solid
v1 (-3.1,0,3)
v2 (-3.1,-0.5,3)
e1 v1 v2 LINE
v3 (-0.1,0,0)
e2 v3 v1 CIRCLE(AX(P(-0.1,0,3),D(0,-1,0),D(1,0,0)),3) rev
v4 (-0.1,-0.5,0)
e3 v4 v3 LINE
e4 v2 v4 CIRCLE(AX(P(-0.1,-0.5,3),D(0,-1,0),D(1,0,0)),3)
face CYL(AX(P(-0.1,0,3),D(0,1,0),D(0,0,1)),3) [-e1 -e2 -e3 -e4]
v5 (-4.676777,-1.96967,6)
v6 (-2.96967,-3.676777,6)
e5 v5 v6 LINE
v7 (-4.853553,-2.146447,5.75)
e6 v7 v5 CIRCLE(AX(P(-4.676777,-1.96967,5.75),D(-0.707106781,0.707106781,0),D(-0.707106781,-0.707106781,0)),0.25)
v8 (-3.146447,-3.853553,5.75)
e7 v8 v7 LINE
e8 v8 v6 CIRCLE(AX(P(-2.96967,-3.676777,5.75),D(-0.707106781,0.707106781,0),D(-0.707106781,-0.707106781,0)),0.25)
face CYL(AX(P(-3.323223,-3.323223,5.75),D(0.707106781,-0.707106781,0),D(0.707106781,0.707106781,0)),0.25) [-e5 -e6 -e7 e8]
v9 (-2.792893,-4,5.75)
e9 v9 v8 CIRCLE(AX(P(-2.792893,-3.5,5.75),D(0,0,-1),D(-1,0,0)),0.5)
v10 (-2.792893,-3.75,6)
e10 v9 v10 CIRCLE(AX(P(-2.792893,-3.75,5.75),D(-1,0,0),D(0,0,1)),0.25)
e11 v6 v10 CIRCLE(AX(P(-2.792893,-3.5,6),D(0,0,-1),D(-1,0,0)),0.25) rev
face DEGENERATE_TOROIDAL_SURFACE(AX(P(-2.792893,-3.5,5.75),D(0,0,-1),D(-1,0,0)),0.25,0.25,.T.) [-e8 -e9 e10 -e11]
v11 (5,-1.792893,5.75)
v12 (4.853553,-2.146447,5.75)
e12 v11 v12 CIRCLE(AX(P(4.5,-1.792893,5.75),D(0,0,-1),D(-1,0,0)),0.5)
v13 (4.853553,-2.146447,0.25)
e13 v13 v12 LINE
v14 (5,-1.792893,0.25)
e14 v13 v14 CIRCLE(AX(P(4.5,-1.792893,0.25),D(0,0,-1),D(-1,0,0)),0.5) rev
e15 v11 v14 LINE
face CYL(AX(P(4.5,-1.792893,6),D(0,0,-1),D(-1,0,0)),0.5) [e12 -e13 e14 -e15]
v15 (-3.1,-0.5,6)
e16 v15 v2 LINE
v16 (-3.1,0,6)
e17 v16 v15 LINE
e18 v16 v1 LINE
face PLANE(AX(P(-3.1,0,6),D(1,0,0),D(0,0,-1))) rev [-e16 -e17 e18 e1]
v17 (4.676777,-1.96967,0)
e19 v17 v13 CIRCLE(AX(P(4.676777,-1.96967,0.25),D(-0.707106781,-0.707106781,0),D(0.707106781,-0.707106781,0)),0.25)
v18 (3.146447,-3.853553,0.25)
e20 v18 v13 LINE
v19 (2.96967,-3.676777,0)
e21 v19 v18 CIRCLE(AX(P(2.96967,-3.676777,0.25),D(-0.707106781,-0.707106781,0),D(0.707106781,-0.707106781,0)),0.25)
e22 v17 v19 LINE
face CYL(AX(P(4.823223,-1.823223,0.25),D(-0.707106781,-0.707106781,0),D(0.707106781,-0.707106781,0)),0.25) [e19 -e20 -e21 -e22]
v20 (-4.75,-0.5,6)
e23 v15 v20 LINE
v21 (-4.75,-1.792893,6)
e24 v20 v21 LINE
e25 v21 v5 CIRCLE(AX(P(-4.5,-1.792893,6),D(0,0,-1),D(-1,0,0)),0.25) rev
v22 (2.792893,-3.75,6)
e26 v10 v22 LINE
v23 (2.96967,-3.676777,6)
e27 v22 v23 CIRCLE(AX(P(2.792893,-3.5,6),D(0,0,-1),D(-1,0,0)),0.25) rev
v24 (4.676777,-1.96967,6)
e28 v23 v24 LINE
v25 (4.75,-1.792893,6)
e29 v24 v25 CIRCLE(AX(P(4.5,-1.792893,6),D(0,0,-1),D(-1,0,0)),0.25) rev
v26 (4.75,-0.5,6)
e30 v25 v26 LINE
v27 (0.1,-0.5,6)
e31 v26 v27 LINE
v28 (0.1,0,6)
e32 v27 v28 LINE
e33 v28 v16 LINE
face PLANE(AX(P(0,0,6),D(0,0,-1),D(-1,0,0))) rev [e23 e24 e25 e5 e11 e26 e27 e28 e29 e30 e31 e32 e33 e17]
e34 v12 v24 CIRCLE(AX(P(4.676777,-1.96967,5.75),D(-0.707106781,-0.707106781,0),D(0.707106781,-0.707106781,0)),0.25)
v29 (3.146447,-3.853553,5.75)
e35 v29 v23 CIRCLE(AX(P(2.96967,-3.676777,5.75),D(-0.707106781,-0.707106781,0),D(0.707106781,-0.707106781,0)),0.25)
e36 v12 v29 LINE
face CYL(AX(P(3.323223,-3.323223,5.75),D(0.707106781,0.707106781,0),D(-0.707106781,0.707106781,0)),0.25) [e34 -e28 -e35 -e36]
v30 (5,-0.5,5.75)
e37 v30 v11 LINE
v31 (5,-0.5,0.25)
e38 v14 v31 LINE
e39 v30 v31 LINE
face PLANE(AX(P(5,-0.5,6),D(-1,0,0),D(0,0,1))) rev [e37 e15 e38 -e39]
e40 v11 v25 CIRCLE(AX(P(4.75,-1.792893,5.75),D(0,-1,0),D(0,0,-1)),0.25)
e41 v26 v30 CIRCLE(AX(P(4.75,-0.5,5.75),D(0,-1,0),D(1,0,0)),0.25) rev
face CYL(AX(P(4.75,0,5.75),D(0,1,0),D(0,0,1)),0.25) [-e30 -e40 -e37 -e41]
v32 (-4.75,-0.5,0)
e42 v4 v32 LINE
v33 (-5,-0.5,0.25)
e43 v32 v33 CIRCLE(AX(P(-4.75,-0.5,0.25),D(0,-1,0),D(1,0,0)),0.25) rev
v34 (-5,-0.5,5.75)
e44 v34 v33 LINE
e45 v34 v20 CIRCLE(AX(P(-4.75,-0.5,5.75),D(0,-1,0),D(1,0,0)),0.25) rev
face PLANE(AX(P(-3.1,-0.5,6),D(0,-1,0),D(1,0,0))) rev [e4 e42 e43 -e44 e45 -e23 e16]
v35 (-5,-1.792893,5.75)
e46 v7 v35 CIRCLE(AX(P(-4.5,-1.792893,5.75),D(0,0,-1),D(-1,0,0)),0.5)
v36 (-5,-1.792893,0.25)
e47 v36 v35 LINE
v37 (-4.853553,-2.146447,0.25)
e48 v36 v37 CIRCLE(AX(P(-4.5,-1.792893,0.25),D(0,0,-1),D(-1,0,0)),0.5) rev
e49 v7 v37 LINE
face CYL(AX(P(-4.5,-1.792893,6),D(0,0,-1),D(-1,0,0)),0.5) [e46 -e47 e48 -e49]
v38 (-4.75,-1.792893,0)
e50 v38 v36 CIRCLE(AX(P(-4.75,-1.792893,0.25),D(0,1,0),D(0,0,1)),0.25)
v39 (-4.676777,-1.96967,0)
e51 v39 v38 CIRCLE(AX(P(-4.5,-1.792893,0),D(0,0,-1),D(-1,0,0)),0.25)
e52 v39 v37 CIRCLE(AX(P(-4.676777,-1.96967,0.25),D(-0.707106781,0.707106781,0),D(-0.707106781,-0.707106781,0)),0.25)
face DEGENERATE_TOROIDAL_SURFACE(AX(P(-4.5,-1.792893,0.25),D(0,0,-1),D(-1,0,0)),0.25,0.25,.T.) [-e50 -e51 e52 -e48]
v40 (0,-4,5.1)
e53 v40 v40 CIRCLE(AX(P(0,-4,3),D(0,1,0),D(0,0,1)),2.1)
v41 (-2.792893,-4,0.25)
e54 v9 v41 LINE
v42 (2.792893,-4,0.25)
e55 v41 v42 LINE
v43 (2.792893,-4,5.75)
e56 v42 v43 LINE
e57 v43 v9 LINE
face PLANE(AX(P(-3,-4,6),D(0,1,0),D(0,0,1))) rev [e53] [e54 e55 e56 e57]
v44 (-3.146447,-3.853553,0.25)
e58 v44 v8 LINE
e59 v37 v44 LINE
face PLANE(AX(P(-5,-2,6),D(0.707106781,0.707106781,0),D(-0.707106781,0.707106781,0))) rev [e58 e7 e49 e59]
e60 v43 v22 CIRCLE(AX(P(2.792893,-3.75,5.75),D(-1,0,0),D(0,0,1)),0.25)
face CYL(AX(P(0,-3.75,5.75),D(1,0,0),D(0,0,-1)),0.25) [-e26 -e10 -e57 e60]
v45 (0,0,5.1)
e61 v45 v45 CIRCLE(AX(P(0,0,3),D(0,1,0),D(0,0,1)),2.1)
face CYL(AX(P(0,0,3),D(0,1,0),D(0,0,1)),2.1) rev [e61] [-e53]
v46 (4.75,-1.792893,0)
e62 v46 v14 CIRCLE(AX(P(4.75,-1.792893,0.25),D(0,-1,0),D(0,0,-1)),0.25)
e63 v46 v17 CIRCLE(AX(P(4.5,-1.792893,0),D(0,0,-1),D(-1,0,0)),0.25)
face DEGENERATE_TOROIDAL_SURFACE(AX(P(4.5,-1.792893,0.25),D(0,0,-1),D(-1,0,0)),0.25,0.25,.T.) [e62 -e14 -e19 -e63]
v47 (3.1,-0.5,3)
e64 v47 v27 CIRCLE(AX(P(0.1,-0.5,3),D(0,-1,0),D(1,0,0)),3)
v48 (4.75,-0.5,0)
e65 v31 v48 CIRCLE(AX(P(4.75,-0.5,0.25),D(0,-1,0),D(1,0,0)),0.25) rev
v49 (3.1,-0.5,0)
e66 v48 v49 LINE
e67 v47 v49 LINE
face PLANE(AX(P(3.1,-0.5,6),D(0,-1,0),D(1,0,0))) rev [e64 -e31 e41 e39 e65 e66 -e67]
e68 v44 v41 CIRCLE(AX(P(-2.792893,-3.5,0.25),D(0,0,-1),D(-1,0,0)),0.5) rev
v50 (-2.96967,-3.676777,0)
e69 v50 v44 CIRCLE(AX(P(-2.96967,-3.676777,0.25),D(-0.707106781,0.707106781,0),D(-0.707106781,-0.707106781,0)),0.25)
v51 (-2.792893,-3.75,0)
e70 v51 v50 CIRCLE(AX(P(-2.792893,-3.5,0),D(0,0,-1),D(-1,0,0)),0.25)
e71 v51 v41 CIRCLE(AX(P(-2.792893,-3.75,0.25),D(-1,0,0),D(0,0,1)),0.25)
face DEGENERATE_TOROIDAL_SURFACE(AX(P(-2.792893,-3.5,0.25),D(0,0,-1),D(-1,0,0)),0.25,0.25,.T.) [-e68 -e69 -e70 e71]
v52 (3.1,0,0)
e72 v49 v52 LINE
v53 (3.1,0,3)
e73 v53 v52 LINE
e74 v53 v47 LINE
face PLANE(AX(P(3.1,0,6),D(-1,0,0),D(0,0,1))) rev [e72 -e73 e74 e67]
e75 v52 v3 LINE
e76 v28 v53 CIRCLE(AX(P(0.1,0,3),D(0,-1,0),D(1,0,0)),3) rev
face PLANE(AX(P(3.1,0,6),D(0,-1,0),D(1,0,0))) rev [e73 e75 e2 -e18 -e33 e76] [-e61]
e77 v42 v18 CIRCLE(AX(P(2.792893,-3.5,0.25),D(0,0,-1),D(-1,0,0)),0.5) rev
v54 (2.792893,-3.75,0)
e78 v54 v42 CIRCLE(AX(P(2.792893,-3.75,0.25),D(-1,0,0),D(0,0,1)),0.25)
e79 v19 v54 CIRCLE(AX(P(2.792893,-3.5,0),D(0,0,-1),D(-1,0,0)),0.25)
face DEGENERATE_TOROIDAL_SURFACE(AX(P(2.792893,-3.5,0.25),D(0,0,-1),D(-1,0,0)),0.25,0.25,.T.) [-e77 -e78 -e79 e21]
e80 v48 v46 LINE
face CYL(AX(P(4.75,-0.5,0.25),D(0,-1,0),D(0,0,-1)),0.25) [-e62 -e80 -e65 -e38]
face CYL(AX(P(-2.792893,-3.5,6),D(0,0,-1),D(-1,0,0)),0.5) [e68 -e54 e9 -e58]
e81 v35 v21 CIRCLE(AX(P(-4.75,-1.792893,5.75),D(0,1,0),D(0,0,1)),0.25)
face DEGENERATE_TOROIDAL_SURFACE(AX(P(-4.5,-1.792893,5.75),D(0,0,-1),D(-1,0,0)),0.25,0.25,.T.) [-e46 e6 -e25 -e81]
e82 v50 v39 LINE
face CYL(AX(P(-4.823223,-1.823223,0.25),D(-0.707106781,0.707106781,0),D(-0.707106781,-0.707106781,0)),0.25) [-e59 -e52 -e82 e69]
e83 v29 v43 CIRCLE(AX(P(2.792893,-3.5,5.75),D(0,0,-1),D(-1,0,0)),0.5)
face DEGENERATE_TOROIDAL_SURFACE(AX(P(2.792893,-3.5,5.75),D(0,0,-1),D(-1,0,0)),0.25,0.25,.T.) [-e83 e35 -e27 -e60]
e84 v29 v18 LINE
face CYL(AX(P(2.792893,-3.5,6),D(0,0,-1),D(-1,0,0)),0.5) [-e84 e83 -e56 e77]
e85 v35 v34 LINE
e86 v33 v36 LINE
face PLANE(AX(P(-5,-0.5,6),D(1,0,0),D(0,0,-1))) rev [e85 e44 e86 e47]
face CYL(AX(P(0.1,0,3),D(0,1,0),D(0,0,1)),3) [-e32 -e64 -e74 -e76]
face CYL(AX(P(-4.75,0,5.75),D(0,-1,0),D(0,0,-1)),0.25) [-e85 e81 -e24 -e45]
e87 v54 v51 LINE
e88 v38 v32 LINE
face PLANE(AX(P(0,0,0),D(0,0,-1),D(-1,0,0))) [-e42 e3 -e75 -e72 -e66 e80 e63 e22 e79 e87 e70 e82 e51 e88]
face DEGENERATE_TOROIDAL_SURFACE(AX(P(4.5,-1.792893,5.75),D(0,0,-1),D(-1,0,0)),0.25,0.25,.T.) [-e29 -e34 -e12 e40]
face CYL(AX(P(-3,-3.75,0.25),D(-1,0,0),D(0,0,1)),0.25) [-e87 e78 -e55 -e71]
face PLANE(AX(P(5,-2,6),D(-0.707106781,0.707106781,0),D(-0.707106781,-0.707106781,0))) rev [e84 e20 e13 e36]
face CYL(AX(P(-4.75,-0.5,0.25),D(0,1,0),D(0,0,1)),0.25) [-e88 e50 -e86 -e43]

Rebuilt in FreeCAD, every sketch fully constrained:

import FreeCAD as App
import Part
import Sketcher

V = App.Vector


def edges_at(feature, points):
    """Names of the edges that pass closest to the given points."""
    edges = feature.Shape.Edges
    near = lambda p: min(range(len(edges)), key=lambda i: edges[i].distToShape(Part.Vertex(*p))[0])
    return sorted({f"Edge{near(p) + 1}" for p in points})

doc = App.newDocument("Part")
body = doc.addObject("PartDesign::Body", "Body")

sketch1 = doc.addObject("Sketcher::SketchObject", "Sketch")
body.addObject(sketch1)
sketch1.AttachmentSupport = (doc.XY_Plane, [""])
sketch1.MapMode = "FlatFace"
sketch1.addGeometry([
    Part.LineSegment(V(3.1, 0, 0), V(-3.1, 0, 0)),
    Part.LineSegment(V(-3.1, 0, 0), V(-3.1, -0.5, 0)),
    Part.LineSegment(V(-3.1, -0.5, 0), V(-5, -0.5, 0)),
    Part.LineSegment(V(-5, -0.5, 0), V(-5, -2, 0)),
    Part.LineSegment(V(-5, -2, 0), V(-3, -4, 0)),
    Part.LineSegment(V(-3, -4, 0), V(3, -4, 0)),
    Part.LineSegment(V(3, -4, 0), V(5, -2, 0)),
    Part.LineSegment(V(5, -2, 0), V(5, -0.5, 0)),
    Part.LineSegment(V(5, -0.5, 0), V(3.1, -0.5, 0)),
    Part.LineSegment(V(3.1, -0.5, 0), V(3.1, 0, 0)),
], False)
sketch1.addConstraint([
    Sketcher.Constraint("Coincident", 0, 2, 1, 1),
    Sketcher.Constraint("Coincident", 1, 2, 2, 1),
    Sketcher.Constraint("Coincident", 2, 2, 3, 1),
    Sketcher.Constraint("Coincident", 3, 2, 4, 1),
    Sketcher.Constraint("Coincident", 4, 2, 5, 1),
    Sketcher.Constraint("Coincident", 5, 2, 6, 1),
    Sketcher.Constraint("Coincident", 6, 2, 7, 1),
    Sketcher.Constraint("Coincident", 7, 2, 8, 1),
    Sketcher.Constraint("Coincident", 8, 2, 9, 1),
    Sketcher.Constraint("Coincident", 9, 2, 0, 1),
    Sketcher.Constraint("Horizontal", 0),
    Sketcher.Constraint("Vertical", 1),
    Sketcher.Constraint("Horizontal", 2),
    Sketcher.Constraint("Vertical", 3),
    Sketcher.Constraint("Horizontal", 5),
    Sketcher.Constraint("Vertical", 7),
    Sketcher.Constraint("Horizontal", 8),
    Sketcher.Constraint("Vertical", 9),
    Sketcher.Constraint("Symmetric", 0, 2, 9, 2, -1, 1),
    Sketcher.Constraint("Symmetric", 3, 2, 6, 2, -2),
    Sketcher.Constraint("Perpendicular", 4, 6),
    Sketcher.Constraint("Horizontal", 2, 2, 7, 2),
    Sketcher.Constraint("Equal", 4, 6),
    Sketcher.Constraint("DistanceX", 5, 1, 5, 2, 6.0),
    Sketcher.Constraint("DistanceX", 0, 2, 0, 1, 6.2),
    Sketcher.Constraint("DistanceX", 2, 2, 2, 1, 1.9),
    Sketcher.Constraint("DistanceY", 1, 2, 1, 1, 0.5),
    Sketcher.Constraint("DistanceY", 3, 2, 3, 1, 1.5),
])
pad1 = doc.addObject("PartDesign::Pad", "Pad")
body.addObject(pad1)
pad1.Profile = sketch1
pad1.Length = 6

sketch2 = doc.addObject("Sketcher::SketchObject", "Sketch001")
body.addObject(sketch2)
sketch2.AttachmentSupport = (doc.XZ_Plane, [""])
sketch2.MapMode = "FlatFace"
sketch2.addGeometry(Part.Circle(V(0, 3, 0), V(0, 0, 1), 2.1), False)
sketch2.addConstraint([
    Sketcher.Constraint("PointOnObject", 0, 3, -2),
    Sketcher.Constraint("Diameter", 0, 4.2),
    Sketcher.Constraint("DistanceY", -1, 1, 0, 3, 3.0),
])
doc.recompute()
hole = doc.addObject("PartDesign::Hole", "Hole")
body.addObject(hole)
hole.Profile = sketch2
hole.ThreadType = "None"
hole.Diameter = 4.2
hole.DepthType = "ThroughAll"
hole.Reversed = True
doc.recompute()

fillet = doc.addObject("PartDesign::Fillet", "Fillet")
body.addObject(fillet)
fillet.Base = (hole, edges_at(hole, [(-3.1, -0.25, 0), (3.1, -0.25, 6)]))
fillet.Radius = 3
doc.recompute()

fillet2 = doc.addObject("PartDesign::Fillet", "Fillet001")
body.addObject(fillet2)
fillet2.Base = (fillet, edges_at(fillet, [
    (5, -2, 3),
    (3, -4, 3),
    (-3, -4, 3),
    (-5, -2, 3),
]))
fillet2.Radius = 0.5
doc.recompute()

fillet3 = doc.addObject("PartDesign::Fillet", "Fillet002")
body.addObject(fillet3)
fillet3.Base = (fillet2, edges_at(fillet2, [
    (-5, -1.146, 6),
    (-5, -1.146, 0),
    (5, -1.146, 0),
    (5, -1.146, 6),
    (4, -3, 0),
    (0, -4, 0),
    (-4, -3, 0),
    (-2.984, -3.962, 0),
    (-4.962, -1.984, 0),
    (2.984, -3.962, 0),
    (4.962, -1.984, 0),
    (4, -3, 6),
    (-4, -3, 6),
    (0, -4, 6),
    (-2.984, -3.962, 6),
    (-4.962, -1.984, 6),
    (2.984, -3.962, 6),
    (4.962, -1.984, 6),
]))
fillet3.Radius = 0.25

doc.recompute()
